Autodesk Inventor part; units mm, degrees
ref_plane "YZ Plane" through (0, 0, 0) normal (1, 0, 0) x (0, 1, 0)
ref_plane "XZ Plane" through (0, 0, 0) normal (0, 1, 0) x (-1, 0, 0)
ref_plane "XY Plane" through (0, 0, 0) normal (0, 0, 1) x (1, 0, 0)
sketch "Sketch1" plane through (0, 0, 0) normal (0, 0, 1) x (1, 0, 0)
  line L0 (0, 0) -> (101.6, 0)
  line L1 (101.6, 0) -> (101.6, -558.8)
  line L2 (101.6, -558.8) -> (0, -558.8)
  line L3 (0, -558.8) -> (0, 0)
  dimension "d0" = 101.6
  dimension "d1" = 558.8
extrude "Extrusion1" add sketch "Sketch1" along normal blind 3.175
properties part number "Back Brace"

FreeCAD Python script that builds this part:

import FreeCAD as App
import Part
import Sketcher
from FreeCAD import Vector
Q = App.Units.Quantity

doc = App.newDocument("Part")
body = doc.addObject("PartDesign::Body", "Body")

# Sketch on XY plane
sketch1 = body.newObject("Sketcher::SketchObject", "Sketch")
sketch1.AttachmentSupport = (doc.getObject("XY_Plane"), [""])
sketch1.MapMode = "FlatFace"
sketch1.addGeometry([
    Part.LineSegment(Vector(102, 0, 0), Vector(0, 0, 0)),
    Part.LineSegment(Vector(0, 0, 0), Vector(0, -559, 0)),
    Part.LineSegment(Vector(0, -559, 0), Vector(102, -559, 0)),
    Part.LineSegment(Vector(102, -559, 0), Vector(102, 0, 0)),
], False)
sketch1.addConstraint([
    Sketcher.Constraint("Coincident", 0, 2, 1, 1),
    Sketcher.Constraint("Coincident", 1, 2, 2, 1),
    Sketcher.Constraint("Coincident", 2, 2, 3, 1),
    Sketcher.Constraint("Coincident", 3, 2, 0, 1),
    Sketcher.Constraint("Horizontal", 0),
    Sketcher.Constraint("Vertical", 1),
    Sketcher.Constraint("Horizontal", 2),
    Sketcher.Constraint("Vertical", 3),
    Sketcher.Constraint("Coincident", 0, 2, -1, 1),
    Sketcher.Constraint("DistanceX", 0, 2, 0, 1, Q("4 in")),
    Sketcher.Constraint("DistanceY", 1, 2, 1, 1, Q("22 in")),
])
pad1 = body.newObject("PartDesign::Pad", "Pad")
pad1.Profile = sketch1
pad1.Length = Q("0.125 in")

doc.recompute()
